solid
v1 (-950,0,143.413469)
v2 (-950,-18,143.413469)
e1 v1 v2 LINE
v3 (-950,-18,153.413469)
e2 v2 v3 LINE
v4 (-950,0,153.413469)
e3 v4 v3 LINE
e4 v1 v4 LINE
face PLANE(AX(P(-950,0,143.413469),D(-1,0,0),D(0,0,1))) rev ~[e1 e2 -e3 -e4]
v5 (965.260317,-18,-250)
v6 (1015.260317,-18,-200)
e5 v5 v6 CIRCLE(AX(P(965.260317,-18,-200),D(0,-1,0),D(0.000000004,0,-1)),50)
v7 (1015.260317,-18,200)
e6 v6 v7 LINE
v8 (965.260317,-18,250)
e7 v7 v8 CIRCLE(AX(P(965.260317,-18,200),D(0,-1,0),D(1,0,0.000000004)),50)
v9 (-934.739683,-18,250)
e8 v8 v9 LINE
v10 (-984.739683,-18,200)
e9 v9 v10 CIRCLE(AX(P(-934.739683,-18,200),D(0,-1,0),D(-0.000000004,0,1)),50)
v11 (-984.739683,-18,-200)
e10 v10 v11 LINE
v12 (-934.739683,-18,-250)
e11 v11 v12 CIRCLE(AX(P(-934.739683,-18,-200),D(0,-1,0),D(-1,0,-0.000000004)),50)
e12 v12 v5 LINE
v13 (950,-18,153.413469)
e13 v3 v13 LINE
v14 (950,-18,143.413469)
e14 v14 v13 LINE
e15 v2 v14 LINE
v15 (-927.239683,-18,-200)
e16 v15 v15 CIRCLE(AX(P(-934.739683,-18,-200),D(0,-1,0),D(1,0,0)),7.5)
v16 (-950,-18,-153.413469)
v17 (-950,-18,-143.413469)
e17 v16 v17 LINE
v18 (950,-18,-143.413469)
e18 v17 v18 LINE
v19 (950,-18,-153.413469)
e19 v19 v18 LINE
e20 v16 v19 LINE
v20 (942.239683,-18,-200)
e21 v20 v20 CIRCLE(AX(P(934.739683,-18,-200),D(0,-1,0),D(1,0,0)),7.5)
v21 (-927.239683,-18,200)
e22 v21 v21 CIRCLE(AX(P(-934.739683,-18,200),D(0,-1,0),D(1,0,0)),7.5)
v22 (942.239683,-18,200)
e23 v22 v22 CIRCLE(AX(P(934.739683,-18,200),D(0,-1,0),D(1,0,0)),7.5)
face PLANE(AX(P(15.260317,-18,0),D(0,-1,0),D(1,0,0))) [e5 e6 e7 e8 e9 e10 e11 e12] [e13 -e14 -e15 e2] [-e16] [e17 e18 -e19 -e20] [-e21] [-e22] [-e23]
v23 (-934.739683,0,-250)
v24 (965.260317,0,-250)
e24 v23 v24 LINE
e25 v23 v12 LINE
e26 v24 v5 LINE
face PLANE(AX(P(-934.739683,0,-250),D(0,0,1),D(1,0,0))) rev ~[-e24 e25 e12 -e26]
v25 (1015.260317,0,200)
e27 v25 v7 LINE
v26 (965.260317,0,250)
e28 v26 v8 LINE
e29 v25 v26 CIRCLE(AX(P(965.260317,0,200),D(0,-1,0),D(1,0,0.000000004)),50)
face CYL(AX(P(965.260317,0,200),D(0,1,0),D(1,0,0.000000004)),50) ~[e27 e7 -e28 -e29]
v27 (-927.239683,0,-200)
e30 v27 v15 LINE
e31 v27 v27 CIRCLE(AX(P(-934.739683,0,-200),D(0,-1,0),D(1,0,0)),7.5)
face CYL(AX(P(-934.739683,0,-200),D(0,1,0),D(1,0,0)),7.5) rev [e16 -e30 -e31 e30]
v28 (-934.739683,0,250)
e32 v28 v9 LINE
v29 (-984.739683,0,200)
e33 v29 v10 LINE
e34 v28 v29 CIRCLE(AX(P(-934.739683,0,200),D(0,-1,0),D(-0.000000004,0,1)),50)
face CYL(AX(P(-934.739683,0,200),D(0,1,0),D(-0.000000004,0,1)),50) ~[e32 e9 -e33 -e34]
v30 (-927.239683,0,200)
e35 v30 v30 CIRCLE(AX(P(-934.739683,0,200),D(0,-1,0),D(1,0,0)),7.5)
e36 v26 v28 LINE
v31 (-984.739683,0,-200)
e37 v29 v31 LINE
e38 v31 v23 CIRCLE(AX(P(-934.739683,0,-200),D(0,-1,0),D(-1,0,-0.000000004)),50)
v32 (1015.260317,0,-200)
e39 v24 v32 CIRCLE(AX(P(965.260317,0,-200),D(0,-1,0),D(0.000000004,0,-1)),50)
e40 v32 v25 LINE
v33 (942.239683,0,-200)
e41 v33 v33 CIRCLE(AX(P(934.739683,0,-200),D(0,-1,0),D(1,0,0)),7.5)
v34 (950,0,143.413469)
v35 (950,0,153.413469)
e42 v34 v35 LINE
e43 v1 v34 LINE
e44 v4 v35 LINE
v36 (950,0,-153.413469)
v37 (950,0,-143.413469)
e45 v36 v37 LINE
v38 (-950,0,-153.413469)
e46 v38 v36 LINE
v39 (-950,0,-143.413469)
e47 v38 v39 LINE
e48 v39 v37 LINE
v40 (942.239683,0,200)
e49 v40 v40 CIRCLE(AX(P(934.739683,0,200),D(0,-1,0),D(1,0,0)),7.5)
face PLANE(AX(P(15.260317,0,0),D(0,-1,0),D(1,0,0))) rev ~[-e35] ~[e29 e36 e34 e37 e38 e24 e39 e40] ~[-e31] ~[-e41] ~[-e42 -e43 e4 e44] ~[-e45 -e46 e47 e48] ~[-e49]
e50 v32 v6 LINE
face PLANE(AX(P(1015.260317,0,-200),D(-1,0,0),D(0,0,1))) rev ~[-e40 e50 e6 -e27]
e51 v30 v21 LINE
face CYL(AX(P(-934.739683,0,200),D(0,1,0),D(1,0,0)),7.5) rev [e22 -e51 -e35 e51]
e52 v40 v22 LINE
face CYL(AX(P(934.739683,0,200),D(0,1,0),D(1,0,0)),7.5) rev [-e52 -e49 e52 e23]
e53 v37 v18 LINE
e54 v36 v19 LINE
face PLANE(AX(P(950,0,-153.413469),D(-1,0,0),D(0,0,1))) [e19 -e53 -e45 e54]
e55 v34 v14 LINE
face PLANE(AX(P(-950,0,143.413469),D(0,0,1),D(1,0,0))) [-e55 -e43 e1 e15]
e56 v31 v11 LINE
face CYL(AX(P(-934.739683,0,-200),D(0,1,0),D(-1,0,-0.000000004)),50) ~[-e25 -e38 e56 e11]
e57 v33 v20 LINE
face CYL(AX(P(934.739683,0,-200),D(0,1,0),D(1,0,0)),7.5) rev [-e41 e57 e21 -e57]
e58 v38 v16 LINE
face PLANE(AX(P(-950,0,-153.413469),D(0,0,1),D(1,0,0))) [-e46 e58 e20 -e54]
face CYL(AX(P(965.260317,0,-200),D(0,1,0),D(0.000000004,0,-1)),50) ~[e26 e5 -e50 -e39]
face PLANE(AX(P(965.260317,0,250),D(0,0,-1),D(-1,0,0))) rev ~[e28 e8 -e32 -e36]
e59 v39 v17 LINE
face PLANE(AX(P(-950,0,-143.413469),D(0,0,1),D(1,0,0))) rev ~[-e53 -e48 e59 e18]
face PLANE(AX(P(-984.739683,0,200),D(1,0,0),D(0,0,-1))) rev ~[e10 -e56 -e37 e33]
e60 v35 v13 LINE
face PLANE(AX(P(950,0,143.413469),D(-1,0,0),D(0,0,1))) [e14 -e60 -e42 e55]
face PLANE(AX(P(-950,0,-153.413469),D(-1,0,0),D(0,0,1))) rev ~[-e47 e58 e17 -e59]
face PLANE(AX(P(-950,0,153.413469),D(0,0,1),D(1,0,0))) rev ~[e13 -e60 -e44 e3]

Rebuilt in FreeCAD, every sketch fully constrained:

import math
import FreeCAD as App
import Part
import Sketcher

V = App.Vector
Q = App.Units.Quantity


def add_polygon(sketch, points):
    """Adds a closed chain of lines whose ends are joined by coincident constraints."""
    first, n = sketch.GeometryCount, len(points)
    for a, b in zip(points, points[1:] + points[:1]):
        sketch.addGeometry(Part.LineSegment(App.Vector(*a, 0), App.Vector(*b, 0)), False)
    for i in range(n):
        sketch.addConstraint(Sketcher.Constraint("Coincident", first + i, 2, first + (i + 1) % n, 1))

doc = App.newDocument("Part")
params = doc.addObject("Spreadsheet::Sheet", "Params")
for row, (alias, value) in enumerate([
    ("sketch1_diameter", "15 mm"),
    ("sketch1_radius", "50 mm"),
    ("sketch1_width", "1900 mm"),
    ("sketch1_height", "400 mm"),
    ("sketch1_height2", "10 mm"),
    ("pad1_length", "18 mm"),
], start=1):
    params.set(f"A{row}", alias)
    params.set(f"B{row}", "=" + value)
    params.setAlias(f"B{row}", alias)

body = doc.addObject("PartDesign::Body", "Body")

# Sketch on XZ plane
sketch1 = body.newObject("Sketcher::SketchObject", "Sketch")
sketch1.AttachmentSupport = (doc.getObject("XZ_Plane"), [""])
sketch1.MapMode = "FlatFace"
sketch1.addGeometry(Part.LineSegment(V(965, 250, 0), V(-935, 250, 0)), False)  # 0
sketch1.addGeometry(Part.ArcOfCircle(Part.Circle(V(-935, 200, 0), V(0, 0, 1), 50), math.radians(90), math.radians(180)), False)  # 1
sketch1.addGeometry(Part.LineSegment(V(-985, 200, 0), V(-985, -200, 0)), False)  # 2
sketch1.addGeometry(Part.ArcOfCircle(Part.Circle(V(-935, -200, 0), V(0, 0, 1), 50), math.radians(-180), math.radians(-90)), False)  # 3
sketch1.addGeometry(Part.LineSegment(V(-935, -250, 0), V(965, -250, 0)), False)  # 4
sketch1.addGeometry(Part.ArcOfCircle(Part.Circle(V(965, -200, 0), V(0, 0, 1), 50), math.radians(-90), math.radians(0)), False)  # 5
sketch1.addGeometry(Part.LineSegment(V(1015, -200, 0), V(1015, 200, 0)), False)  # 6
sketch1.addGeometry(Part.ArcOfCircle(Part.Circle(V(965, 200, 0), V(0, 0, 1), 50), math.radians(0), math.radians(90)), False)  # 7
sketch1.addGeometry(Part.Circle(V(-935, -200, 0), V(0, 0, 1), 8), False)  # 8
add_polygon(sketch1, [(950, -153), (-950, -153), (-950, -143), (950, -143)])  # lines 9-12
sketch1.addGeometry(Part.Circle(V(935, -200, 0), V(0, 0, 1), 8), False)  # 13
sketch1.addGeometry(Part.Circle(V(-935, 200, 0), V(0, 0, 1), 8), False)  # 14
add_polygon(sketch1, [(950, 143), (-950, 143), (-950, 153), (950, 153)])  # lines 15-18
sketch1.addGeometry(Part.Circle(V(935, 200, 0), V(0, 0, 1), 8), False)  # 19
sketch1.addConstraint(Sketcher.Constraint("Tangent", 0, 2, 1, 1))
sketch1.addConstraint(Sketcher.Constraint("Tangent", 1, 2, 2, 1))
sketch1.addConstraint(Sketcher.Constraint("Tangent", 2, 2, 3, 1))
sketch1.addConstraint(Sketcher.Constraint("Tangent", 3, 2, 4, 1))
sketch1.addConstraint(Sketcher.Constraint("Tangent", 4, 2, 5, 1))
sketch1.addConstraint(Sketcher.Constraint("Tangent", 5, 2, 6, 1))
sketch1.addConstraint(Sketcher.Constraint("Tangent", 6, 2, 7, 1))
sketch1.addConstraint(Sketcher.Constraint("Tangent", 7, 2, 0, 1))
sketch1.addConstraint(Sketcher.Constraint("Horizontal", 0))
sketch1.addConstraint(Sketcher.Constraint("Vertical", 2))
sketch1.addConstraint(Sketcher.Constraint("Horizontal", 4))
sketch1.addConstraint(Sketcher.Constraint("Vertical", 6))
sketch1.addConstraint(Sketcher.Constraint("Horizontal", 9))
sketch1.addConstraint(Sketcher.Constraint("Vertical", 10))
sketch1.addConstraint(Sketcher.Constraint("Horizontal", 11))
sketch1.addConstraint(Sketcher.Constraint("Vertical", 12))
sketch1.addConstraint(Sketcher.Constraint("Horizontal", 15))
sketch1.addConstraint(Sketcher.Constraint("Vertical", 16))
sketch1.addConstraint(Sketcher.Constraint("Horizontal", 17))
sketch1.addConstraint(Sketcher.Constraint("Vertical", 18))
sketch1.addConstraint(Sketcher.Constraint("Coincident", 8, 3, 3, 3))
sketch1.addConstraint(Sketcher.Constraint("Coincident", 14, 3, 1, 3))
sketch1.addConstraint(Sketcher.Constraint("Equal", 1, 3))
sketch1.addConstraint(Sketcher.Constraint("Equal", 3, 5))
sketch1.addConstraint(Sketcher.Constraint("Equal", 5, 7))
sketch1.addConstraint(Sketcher.Constraint("Equal", 8, 13))
sketch1.addConstraint(Sketcher.Constraint("Equal", 13, 14))
sketch1.addConstraint(Sketcher.Constraint("Equal", 14, 19))
sketch1.addConstraint(Sketcher.Constraint("Symmetric", 1, 3, 13, 3, -1, 1))
sketch1.addConstraint(Sketcher.Constraint("Symmetric", 3, 3, 19, 3, -1, 1))
sketch1.addConstraint(Sketcher.Constraint("Symmetric", 11, 2, 15, 2, -1, 1))
sketch1.addConstraint(Sketcher.Constraint("Symmetric", 9, 2, 17, 2, -1, 1))
sketch1.addConstraint(Sketcher.Constraint("Horizontal", 8, 3, 13, 3))
sketch1.addConstraint(Sketcher.Constraint("Vertical", 10, 2, 15, 2))
sketch1.addConstraint(Sketcher.Constraint("Equal", 4, 9))
sketch1.addConstraint(Sketcher.Constraint("Diameter", 8, Q("15 mm")))
sketch1.addConstraint(Sketcher.Constraint("Radius", 1, Q("50 mm")))
sketch1.addConstraint(Sketcher.Constraint("DistanceX", 0, 2, 0, 1, Q("1900 mm")))
sketch1.addConstraint(Sketcher.Constraint("DistanceY", 2, 2, 2, 1, Q("400 mm")))
sketch1.addConstraint(Sketcher.Constraint("DistanceY", 10, 1, 10, 2, Q("10 mm")))
sketch1.addConstraint(Sketcher.Constraint("DistanceY", 9, 2, -1, 1, Q("153.413469 mm")))
sketch1.addConstraint(Sketcher.Constraint("DistanceX", 1, 3, -1, 1, Q("934.739683 mm")))
sketch1.setExpression("Constraints[43]", "Params.sketch1_diameter")
sketch1.setExpression("Constraints[44]", "Params.sketch1_radius")
sketch1.setExpression("Constraints[45]", "Params.sketch1_width")
sketch1.setExpression("Constraints[46]", "Params.sketch1_height")
sketch1.setExpression("Constraints[47]", "Params.sketch1_height2")
pad1 = body.newObject("PartDesign::Pad", "Pad")
pad1.Profile = sketch1
pad1.setExpression("Length", "Params.pad1_length")

doc.recompute()
